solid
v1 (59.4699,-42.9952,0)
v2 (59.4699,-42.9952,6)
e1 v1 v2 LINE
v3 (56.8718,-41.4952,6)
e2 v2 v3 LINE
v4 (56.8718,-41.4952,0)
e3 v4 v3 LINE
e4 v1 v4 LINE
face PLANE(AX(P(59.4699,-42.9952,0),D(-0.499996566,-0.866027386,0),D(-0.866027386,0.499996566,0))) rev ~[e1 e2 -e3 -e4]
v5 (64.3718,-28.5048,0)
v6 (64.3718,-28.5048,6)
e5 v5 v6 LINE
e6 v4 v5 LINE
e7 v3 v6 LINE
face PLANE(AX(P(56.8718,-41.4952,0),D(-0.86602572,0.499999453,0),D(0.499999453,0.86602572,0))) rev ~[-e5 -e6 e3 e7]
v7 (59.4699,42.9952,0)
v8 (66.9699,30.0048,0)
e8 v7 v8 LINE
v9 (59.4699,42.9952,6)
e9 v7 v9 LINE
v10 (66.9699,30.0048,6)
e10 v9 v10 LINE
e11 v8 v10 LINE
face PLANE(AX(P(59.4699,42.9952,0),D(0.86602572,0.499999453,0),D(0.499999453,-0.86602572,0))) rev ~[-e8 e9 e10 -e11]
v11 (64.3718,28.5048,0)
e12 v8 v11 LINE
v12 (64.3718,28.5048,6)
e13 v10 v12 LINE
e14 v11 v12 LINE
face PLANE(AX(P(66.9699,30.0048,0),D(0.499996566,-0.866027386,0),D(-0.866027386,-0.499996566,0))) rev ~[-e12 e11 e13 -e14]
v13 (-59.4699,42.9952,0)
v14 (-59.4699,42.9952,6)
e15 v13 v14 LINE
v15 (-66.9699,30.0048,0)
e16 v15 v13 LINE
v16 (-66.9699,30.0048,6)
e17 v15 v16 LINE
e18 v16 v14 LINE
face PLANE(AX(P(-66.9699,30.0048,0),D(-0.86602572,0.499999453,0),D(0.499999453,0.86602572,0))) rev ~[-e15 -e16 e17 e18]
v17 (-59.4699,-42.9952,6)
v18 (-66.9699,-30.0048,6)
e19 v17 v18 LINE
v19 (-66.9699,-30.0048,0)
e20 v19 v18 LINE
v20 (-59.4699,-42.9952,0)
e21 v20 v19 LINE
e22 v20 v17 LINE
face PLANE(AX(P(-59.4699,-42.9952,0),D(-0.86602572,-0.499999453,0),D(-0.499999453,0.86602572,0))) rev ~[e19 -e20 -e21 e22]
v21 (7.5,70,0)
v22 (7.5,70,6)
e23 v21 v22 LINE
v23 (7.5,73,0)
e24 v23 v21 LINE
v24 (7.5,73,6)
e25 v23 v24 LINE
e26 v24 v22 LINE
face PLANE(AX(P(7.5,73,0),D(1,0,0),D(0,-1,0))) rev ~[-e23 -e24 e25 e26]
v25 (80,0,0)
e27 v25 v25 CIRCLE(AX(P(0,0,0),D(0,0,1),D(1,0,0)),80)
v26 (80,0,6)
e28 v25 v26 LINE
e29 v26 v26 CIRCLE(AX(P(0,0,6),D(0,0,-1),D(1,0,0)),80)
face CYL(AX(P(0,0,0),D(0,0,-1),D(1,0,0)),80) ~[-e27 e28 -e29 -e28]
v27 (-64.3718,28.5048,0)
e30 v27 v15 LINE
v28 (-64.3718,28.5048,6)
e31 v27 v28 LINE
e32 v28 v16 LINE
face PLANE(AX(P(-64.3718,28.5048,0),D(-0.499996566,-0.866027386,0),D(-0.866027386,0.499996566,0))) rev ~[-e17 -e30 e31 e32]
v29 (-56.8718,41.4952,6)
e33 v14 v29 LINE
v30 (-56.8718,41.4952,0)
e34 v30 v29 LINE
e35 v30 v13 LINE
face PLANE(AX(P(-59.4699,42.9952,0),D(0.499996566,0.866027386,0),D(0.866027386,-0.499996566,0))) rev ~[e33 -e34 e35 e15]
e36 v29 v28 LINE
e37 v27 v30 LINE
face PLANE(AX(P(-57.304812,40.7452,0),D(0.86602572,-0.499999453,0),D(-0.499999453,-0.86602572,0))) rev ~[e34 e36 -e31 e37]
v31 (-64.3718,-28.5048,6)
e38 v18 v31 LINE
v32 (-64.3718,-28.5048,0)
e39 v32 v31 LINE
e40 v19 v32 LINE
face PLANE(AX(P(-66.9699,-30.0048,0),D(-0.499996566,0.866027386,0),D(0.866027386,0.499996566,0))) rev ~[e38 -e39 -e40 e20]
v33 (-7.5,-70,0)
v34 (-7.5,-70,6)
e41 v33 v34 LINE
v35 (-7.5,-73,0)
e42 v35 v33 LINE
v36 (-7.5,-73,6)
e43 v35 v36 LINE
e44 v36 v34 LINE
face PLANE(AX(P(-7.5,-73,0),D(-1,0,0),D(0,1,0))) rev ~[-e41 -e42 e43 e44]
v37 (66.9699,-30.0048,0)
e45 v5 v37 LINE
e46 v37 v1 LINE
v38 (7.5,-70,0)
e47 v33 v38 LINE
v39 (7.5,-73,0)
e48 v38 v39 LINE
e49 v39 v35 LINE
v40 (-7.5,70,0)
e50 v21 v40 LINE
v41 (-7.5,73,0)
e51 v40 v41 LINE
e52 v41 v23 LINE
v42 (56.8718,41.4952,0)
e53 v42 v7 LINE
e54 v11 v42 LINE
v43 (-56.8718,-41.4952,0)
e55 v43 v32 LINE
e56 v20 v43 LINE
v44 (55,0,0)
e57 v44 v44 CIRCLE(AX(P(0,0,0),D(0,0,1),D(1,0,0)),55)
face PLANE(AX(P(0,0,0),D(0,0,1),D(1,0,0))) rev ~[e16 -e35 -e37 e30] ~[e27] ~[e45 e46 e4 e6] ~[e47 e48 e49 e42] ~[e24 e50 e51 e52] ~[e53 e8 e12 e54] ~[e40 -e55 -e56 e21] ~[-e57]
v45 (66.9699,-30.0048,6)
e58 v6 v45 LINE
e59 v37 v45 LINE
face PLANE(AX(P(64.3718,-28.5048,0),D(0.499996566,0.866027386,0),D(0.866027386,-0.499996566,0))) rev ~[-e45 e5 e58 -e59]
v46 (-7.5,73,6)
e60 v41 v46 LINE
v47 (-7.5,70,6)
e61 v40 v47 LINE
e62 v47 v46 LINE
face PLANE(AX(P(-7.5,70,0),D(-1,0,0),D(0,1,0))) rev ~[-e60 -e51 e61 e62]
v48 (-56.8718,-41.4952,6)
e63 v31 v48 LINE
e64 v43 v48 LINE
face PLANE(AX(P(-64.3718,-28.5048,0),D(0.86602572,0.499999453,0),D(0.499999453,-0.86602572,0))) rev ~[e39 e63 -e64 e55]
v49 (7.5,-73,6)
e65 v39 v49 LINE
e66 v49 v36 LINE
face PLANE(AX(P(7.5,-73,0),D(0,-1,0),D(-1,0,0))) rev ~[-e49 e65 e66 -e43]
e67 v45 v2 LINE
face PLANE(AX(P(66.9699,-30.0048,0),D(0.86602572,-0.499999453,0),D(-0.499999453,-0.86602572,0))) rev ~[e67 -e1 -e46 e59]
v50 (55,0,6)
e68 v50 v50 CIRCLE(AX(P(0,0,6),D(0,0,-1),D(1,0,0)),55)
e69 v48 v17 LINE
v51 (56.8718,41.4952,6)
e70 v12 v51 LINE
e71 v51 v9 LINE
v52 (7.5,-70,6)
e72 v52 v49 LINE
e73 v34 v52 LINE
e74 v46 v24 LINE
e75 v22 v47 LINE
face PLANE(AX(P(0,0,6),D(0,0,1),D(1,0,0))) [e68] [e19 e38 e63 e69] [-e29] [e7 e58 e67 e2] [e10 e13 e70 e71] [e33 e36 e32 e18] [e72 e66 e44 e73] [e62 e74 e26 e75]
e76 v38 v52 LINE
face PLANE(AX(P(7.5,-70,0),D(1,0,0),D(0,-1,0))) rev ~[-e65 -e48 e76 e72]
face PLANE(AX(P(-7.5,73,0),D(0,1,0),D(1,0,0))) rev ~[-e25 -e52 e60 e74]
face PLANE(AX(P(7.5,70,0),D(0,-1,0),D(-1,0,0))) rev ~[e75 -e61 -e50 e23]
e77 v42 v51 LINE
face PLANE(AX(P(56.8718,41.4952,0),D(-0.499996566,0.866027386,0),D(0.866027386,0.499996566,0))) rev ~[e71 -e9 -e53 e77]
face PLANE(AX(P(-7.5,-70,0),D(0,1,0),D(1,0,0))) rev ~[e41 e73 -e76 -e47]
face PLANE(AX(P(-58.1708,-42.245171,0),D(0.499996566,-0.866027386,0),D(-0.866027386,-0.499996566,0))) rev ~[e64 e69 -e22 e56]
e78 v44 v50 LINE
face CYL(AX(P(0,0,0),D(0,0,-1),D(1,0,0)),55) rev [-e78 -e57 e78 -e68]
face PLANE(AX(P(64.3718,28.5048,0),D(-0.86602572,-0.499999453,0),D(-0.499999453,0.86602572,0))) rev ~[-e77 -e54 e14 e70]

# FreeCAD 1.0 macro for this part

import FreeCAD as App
import Part
import Sketcher

V = App.Vector
Q = App.Units.Quantity


def add_polygon(sketch, points):
    """Adds a closed chain of lines whose ends are joined by coincident constraints."""
    first, n = sketch.GeometryCount, len(points)
    for a, b in zip(points, points[1:] + points[:1]):
        sketch.addGeometry(Part.LineSegment(App.Vector(*a, 0), App.Vector(*b, 0)), False)
    for i in range(n):
        sketch.addConstraint(Sketcher.Constraint("Coincident", first + i, 2, first + (i + 1) % n, 1))

doc = App.newDocument("Part")
params = doc.addObject("Spreadsheet::Sheet", "Params")
for row, (alias, value) in enumerate([
    ("sketch1_diameter", "160 mm"),
    ("sketch1_diameter2", "110 mm"),
    ("sketch1_width", "15 mm"),
    ("sketch1_height", "3 mm"),
    ("sketch1_length", "15 mm"),
    ("pad1_length", "6 mm"),
], start=1):
    params.set(f"A{row}", alias)
    params.set(f"B{row}", "=" + value)
    params.setAlias(f"B{row}", alias)

body = doc.addObject("PartDesign::Body", "Body")

# Sketch on XY plane
sketch1 = doc.addObject("Sketcher::SketchObject", "Sketch")
body.addObject(sketch1)
sketch1.AttachmentSupport = (doc.XY_Plane, [""])
sketch1.MapMode = "FlatFace"
sketch1.addGeometry(Part.Circle(V(0, 0, 0), V(0, 0, 1), 80), False)  # 0
sketch1.addGeometry(Part.Circle(V(0, 0, 0), V(0, 0, 1), 55), False)  # 1
add_polygon(sketch1, [(-59.5, -43), (-67, -30), (-64.4, -28.5), (-56.9, -41.5)])  # lines 2-5
add_polygon(sketch1, [(7.5, -70), (7.5, -73), (-7.5, -73), (-7.5, -70)])  # lines 6-9
add_polygon(sketch1, [(64.4, -28.5), (67, -30), (59.5, -43), (56.9, -41.5)])  # lines 10-13
add_polygon(sketch1, [(-64.4, 28.5), (-67, 30), (-59.5, 43), (-56.9, 41.5)])  # lines 14-17
add_polygon(sketch1, [(56.9, 41.5), (59.5, 43), (67, 30), (64.4, 28.5)])  # lines 18-21
add_polygon(sketch1, [(-7.5, 70), (-7.5, 73), (7.5, 73), (7.5, 70)])  # lines 22-25
sketch1.addConstraint([
    Sketcher.Constraint("Vertical", 6),
    Sketcher.Constraint("Horizontal", 7),
    Sketcher.Constraint("Vertical", 8),
    Sketcher.Constraint("Horizontal", 9),
    Sketcher.Constraint("Vertical", 22),
    Sketcher.Constraint("Horizontal", 23),
    Sketcher.Constraint("Vertical", 24),
    Sketcher.Constraint("Horizontal", 25),
    Sketcher.Constraint("Coincident", 0, 3, -1, 1),
    Sketcher.Constraint("Coincident", 1, 3, -1, 1),
    Sketcher.Constraint("Symmetric", 10, 2, 14, 2, -1, 1),
    Sketcher.Constraint("Symmetric", 11, 2, 15, 2, -1, 1),
    Sketcher.Constraint("Symmetric", 12, 2, 16, 2, -1, 1),
    Sketcher.Constraint("Symmetric", 13, 2, 17, 2, -1, 1),
    Sketcher.Constraint("Symmetric", 5, 2, 18, 2, -1, 1),
    Sketcher.Constraint("Symmetric", 2, 2, 19, 2, -1, 1),
    Sketcher.Constraint("Symmetric", 3, 2, 20, 2, -1, 1),
    Sketcher.Constraint("Symmetric", 4, 2, 21, 2, -1, 1),
    Sketcher.Constraint("Symmetric", 6, 2, 22, 2, -1, 1),
    Sketcher.Constraint("Symmetric", 8, 2, 24, 2, -1, 1),
    Sketcher.Constraint("Symmetric", 2, 2, 10, 2, -2),
    Sketcher.Constraint("Symmetric", 5, 2, 11, 2, -2),
    Sketcher.Constraint("Symmetric", 4, 2, 12, 2, -2),
    Sketcher.Constraint("Symmetric", 3, 2, 13, 2, -2),
    Sketcher.Constraint("Perpendicular", 2, 3),
    Sketcher.Constraint("Perpendicular", 3, 4),
    Sketcher.Constraint("Perpendicular", 4, 5),
    Sketcher.Constraint("Vertical", 8, 2, 22, 2),
    Sketcher.Constraint("Diameter", 0, 160.0),
    Sketcher.Constraint("Diameter", 1, 110.0),
    Sketcher.Constraint("DistanceX", 7, 2, 7, 1, 15.0),
    Sketcher.Constraint("DistanceY", 6, 2, 6, 1, 3.0),
    Sketcher.Constraint("Distance", 2, 15.0),
    Sketcher.Constraint("Distance", 3, 3.0),
    Sketcher.Constraint("DistanceY", 8, 2, -1, 1, 70.0),
    Sketcher.Constraint("DistanceY", 3, 2, 16, 2, 70.0),
    Sketcher.Constraint("Angle", 2, Q("120 deg")),
    Sketcher.Constraint("DistanceX", 2, 2, -1, 1, 66.97),
])
sketch1.setExpression("Constraints[52]", "Params.sketch1_diameter")
sketch1.setExpression("Constraints[53]", "Params.sketch1_diameter2")
sketch1.setExpression("Constraints[54]", "Params.sketch1_width")
sketch1.setExpression("Constraints[55]", "Params.sketch1_height")
sketch1.setExpression("Constraints[56]", "Params.sketch1_length")
pad1 = doc.addObject("PartDesign::Pad", "Pad")
body.addObject(pad1)
pad1.Profile = sketch1
pad1.setExpression("Length", "Params.pad1_length")

doc.recompute()
